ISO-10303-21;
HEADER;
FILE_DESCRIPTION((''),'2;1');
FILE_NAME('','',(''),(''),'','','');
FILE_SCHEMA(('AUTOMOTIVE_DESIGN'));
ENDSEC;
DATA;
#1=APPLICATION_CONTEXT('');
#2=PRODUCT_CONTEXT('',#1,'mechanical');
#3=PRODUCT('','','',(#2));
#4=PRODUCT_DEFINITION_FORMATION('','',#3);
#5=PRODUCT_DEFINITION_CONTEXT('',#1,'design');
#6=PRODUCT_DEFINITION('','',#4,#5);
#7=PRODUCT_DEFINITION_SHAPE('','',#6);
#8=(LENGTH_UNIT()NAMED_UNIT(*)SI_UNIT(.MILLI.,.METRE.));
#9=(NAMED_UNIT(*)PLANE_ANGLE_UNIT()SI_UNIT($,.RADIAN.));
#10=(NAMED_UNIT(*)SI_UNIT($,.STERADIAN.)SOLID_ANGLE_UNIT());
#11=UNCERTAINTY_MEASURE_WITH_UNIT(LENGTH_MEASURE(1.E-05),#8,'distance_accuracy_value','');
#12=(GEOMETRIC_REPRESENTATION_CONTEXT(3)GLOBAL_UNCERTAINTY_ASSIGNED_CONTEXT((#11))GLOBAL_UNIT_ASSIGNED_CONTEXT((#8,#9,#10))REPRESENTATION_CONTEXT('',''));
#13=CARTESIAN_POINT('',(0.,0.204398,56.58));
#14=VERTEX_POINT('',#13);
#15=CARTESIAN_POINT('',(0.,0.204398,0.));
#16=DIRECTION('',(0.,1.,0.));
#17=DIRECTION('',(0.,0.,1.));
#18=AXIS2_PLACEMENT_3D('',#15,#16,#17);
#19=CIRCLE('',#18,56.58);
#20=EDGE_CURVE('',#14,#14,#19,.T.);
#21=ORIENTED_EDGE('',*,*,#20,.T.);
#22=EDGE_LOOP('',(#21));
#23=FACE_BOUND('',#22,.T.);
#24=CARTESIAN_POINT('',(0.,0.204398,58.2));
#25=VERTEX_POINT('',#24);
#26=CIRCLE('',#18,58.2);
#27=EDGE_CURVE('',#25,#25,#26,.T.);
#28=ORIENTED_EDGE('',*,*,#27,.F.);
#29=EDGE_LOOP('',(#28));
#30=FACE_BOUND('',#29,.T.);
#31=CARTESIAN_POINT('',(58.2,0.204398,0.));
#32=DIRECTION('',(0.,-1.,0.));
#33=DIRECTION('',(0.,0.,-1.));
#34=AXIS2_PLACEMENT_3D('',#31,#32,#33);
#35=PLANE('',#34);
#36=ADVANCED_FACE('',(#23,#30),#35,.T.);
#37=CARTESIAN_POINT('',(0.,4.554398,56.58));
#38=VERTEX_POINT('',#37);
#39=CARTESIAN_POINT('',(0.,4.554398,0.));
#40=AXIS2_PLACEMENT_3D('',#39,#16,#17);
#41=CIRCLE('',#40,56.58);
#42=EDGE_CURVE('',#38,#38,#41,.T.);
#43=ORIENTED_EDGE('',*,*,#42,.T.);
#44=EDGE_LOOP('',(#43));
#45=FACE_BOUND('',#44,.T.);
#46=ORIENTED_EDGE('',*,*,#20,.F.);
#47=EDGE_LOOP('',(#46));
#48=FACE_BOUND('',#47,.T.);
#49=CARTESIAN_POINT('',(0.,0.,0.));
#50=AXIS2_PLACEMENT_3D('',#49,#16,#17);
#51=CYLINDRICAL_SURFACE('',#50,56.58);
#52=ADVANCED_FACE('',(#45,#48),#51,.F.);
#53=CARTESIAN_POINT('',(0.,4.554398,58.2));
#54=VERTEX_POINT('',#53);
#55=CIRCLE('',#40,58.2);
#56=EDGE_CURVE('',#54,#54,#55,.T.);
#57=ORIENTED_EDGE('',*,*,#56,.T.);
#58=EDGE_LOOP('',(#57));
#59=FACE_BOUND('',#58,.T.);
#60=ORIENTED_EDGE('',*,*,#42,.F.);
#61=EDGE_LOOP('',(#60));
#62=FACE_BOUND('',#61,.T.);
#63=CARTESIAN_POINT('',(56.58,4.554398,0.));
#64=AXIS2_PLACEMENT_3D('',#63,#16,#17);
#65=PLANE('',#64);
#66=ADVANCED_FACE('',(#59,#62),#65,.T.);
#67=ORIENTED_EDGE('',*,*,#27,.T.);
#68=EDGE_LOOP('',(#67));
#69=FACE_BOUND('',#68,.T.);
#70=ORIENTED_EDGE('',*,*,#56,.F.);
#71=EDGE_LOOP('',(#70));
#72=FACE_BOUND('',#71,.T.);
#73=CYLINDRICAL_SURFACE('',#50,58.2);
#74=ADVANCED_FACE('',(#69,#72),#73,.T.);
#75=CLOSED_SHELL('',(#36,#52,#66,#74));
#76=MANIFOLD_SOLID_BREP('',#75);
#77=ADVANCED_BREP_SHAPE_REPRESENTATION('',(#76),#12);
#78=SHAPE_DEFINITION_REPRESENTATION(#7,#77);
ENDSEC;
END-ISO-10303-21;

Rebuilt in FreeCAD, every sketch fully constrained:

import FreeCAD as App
import Part
import Sketcher
from FreeCAD import Vector
Q = App.Units.Quantity

doc = App.newDocument("Part")
params = doc.addObject("Spreadsheet::Sheet", "Params")
for row, (alias, value) in enumerate([
    ("sketch1_width", "1.62 mm"),
    ("sketch1_height", "4.35 mm"),
    ("revolution_angle", "360 deg"),
], start=1):
    params.set(f"A{row}", alias)
    params.set(f"B{row}", "=" + value)
    params.setAlias(f"B{row}", alias)

body = doc.addObject("PartDesign::Body", "Body")

# Sketch on XY plane
sketch1 = body.newObject("Sketcher::SketchObject", "Sketch")
sketch1.AttachmentSupport = (doc.getObject("XY_Plane"), [""])
sketch1.MapMode = "FlatFace"
sketch1.addGeometry(Part.LineSegment(Vector(58.2, 4.554398, 0), Vector(58.2, 0.204398, 0)), False)
sketch1.addGeometry(Part.LineSegment(Vector(58.2, 0.204398, 0), Vector(56.58, 0.204398, 0)), False)
sketch1.addGeometry(Part.LineSegment(Vector(56.58, 0.204398, 0), Vector(56.58, 4.554398, 0)), False)
sketch1.addGeometry(Part.LineSegment(Vector(56.58, 4.554398, 0), Vector(58.2, 4.554398, 0)), False)
sketch1.addConstraint(Sketcher.Constraint("Coincident", 0, 2, 1, 1))
sketch1.addConstraint(Sketcher.Constraint("Coincident", 1, 2, 2, 1))
sketch1.addConstraint(Sketcher.Constraint("Coincident", 2, 2, 3, 1))
sketch1.addConstraint(Sketcher.Constraint("Coincident", 3, 2, 0, 1))
sketch1.addConstraint(Sketcher.Constraint("Vertical", 0))
sketch1.addConstraint(Sketcher.Constraint("Horizontal", 1))
sketch1.addConstraint(Sketcher.Constraint("Vertical", 2))
sketch1.addConstraint(Sketcher.Constraint("Horizontal", 3))
sketch1.addConstraint(Sketcher.Constraint("DistanceX", 1, 2, 1, 1, Q("1.62 mm")))
sketch1.addConstraint(Sketcher.Constraint("DistanceY", 0, 2, 0, 1, Q("4.35 mm")))
sketch1.addConstraint(Sketcher.Constraint("DistanceX", -1, 1, 0, 2, Q("58.2 mm")))
sketch1.addConstraint(Sketcher.Constraint("DistanceY", -1, 1, 0, 2, Q("0.204398 mm")))
sketch1.setExpression("Constraints[8]", "Params.sketch1_width")
sketch1.setExpression("Constraints[9]", "Params.sketch1_height")
revolution = body.newObject("PartDesign::Revolution", "Revolution")
revolution.Profile = sketch1
revolution.ReferenceAxis = (sketch1, ["V_Axis"])
revolution.setExpression("Angle", "Params.revolution_angle")

doc.recompute()
